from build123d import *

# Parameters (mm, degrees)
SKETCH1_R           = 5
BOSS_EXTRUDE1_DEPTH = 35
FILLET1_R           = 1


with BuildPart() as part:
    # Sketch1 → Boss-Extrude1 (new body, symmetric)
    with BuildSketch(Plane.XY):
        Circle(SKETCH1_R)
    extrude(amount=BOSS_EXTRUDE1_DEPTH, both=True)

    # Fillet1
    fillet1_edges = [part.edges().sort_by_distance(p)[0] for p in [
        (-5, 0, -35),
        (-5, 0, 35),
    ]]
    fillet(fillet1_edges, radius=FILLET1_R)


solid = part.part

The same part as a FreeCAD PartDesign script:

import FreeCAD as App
import Part
import Sketcher

V = App.Vector


def edges_at(feature, points):
    """Names of the edges that pass closest to the given points."""
    edges = feature.Shape.Edges
    near = lambda p: min(range(len(edges)), key=lambda i: edges[i].distToShape(Part.Vertex(*p))[0])
    return sorted({f"Edge{near(p) + 1}" for p in points})

doc = App.newDocument("Part")
body = doc.addObject("PartDesign::Body", "Body")

sketch1 = body.newObject("Sketcher::SketchObject", "Sketch")
sketch1.AttachmentSupport = (doc.getObject("XY_Plane"), [""])
sketch1.MapMode = "FlatFace"
sketch1.addGeometry(Part.Circle(V(0, 0, 0), V(0, 0, 1), 5), False)
sketch1.addConstraint([
    Sketcher.Constraint("Coincident", 0, 3, -1, 1),
    Sketcher.Constraint("Diameter", 0, 10.0),
])
pad1 = body.newObject("PartDesign::Pad", "Pad")
pad1.Profile = sketch1
pad1.Length = 70
pad1.Midplane = True
doc.recompute()

fillet = body.newObject("PartDesign::Fillet", "Fillet")
fillet.Base = (pad1, edges_at(pad1, [(-5, 0, -35), (-5, 0, 35)]))
fillet.Radius = 1

doc.recompute()
